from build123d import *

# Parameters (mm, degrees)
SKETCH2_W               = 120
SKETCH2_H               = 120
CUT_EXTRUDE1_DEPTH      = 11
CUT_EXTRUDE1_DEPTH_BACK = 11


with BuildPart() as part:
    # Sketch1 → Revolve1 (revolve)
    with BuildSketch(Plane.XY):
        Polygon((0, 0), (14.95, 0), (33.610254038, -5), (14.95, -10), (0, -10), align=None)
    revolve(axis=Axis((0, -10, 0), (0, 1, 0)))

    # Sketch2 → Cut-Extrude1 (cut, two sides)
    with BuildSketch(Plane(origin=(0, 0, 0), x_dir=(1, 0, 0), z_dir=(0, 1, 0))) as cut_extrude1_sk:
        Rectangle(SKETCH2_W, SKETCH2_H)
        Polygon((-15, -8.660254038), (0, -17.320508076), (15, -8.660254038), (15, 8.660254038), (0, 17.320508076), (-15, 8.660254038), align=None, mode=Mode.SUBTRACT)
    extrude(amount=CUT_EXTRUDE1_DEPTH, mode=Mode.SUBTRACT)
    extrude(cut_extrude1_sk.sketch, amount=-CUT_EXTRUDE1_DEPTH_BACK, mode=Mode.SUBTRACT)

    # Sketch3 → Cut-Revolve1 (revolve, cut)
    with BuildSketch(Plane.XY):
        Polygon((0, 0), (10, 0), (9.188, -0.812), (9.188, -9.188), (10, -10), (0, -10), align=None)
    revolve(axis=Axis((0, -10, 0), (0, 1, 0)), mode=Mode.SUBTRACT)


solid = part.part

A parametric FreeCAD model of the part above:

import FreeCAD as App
import Part
import Sketcher

V = App.Vector
Q = App.Units.Quantity

doc = App.newDocument("Part")
params = doc.addObject("Spreadsheet::Sheet", "Params")
for row, (alias, value) in enumerate([
    ("sketch1_height", "10 mm"),
    ("sketch1_width", "14.95 mm"),
    ("revolution_angle", "360 deg"),
    ("sketch2_width", "120 mm"),
    ("sketch3_width", "10 mm"),
    ("groove_angle", "360 deg"),
], start=1):
    params.set(f"A{row}", alias)
    params.set(f"B{row}", "=" + value)
    params.setAlias(f"B{row}", alias)

body = doc.addObject("PartDesign::Body", "Body")

# Sketch on XY plane
sketch1 = body.newObject("Sketcher::SketchObject", "Sketch")
sketch1.AttachmentSupport = (doc.getObject("XY_Plane"), [""])
sketch1.MapMode = "FlatFace"
sketch1.addGeometry(Part.LineSegment(V(15, 0, 0), V(0, 0, 0)), False)
sketch1.addGeometry(Part.LineSegment(V(0, 0, 0), V(0, -10, 0)), False)
sketch1.addGeometry(Part.LineSegment(V(0, -10, 0), V(15, -10, 0)), False)
sketch1.addGeometry(Part.LineSegment(V(15, -10, 0), V(34, -5, 0)), False)
sketch1.addGeometry(Part.LineSegment(V(34, -5, 0), V(15, 0, 0)), False)
sketch1.addConstraint(Sketcher.Constraint("Coincident", 0, 2, 1, 1))
sketch1.addConstraint(Sketcher.Constraint("Coincident", 1, 2, 2, 1))
sketch1.addConstraint(Sketcher.Constraint("Coincident", 2, 2, 3, 1))
sketch1.addConstraint(Sketcher.Constraint("Coincident", 3, 2, 4, 1))
sketch1.addConstraint(Sketcher.Constraint("Coincident", 4, 2, 0, 1))
sketch1.addConstraint(Sketcher.Constraint("Horizontal", 0))
sketch1.addConstraint(Sketcher.Constraint("Vertical", 1))
sketch1.addConstraint(Sketcher.Constraint("Horizontal", 2))
sketch1.addConstraint(Sketcher.Constraint("Coincident", 0, 2, -1, 1))
sketch1.addConstraint(Sketcher.Constraint("Vertical", 2, 2, 4, 2))
sketch1.addConstraint(Sketcher.Constraint("Equal", 3, 4))
sketch1.addConstraint(Sketcher.Constraint("DistanceY", 1, 2, 1, 1, Q("10 mm")))
sketch1.addConstraint(Sketcher.Constraint("Angle", 3, Q("15 deg")))
sketch1.addConstraint(Sketcher.Constraint("DistanceX", 0, 2, 0, 1, Q("14.95 mm")))
sketch1.setExpression("Constraints[11]", "Params.sketch1_height")
sketch1.setExpression("Constraints[13]", "Params.sketch1_width")
revolution = body.newObject("PartDesign::Revolution", "Revolution")
revolution.Profile = sketch1
revolution.ReferenceAxis = (sketch1, ["V_Axis"])
revolution.setExpression("Angle", "Params.revolution_angle")

# Sketch on XZ plane
sketch2 = body.newObject("Sketcher::SketchObject", "Sketch001")
sketch2.AttachmentSupport = (doc.getObject("XZ_Plane"), [""])
sketch2.MapMode = "FlatFace"
sketch2.addGeometry(Part.LineSegment(V(-60, -60, 0), V(-60, 60, 0)), False)
sketch2.addGeometry(Part.LineSegment(V(-60, 60, 0), V(60, 60, 0)), False)
sketch2.addGeometry(Part.LineSegment(V(60, 60, 0), V(60, -60, 0)), False)
sketch2.addGeometry(Part.LineSegment(V(60, -60, 0), V(-60, -60, 0)), False)
sketch2.addGeometry(Part.LineSegment(V(0, 17, 0), V(-15, 9, 0)), False)
sketch2.addGeometry(Part.LineSegment(V(-15, 9, 0), V(-15, -9, 0)), False)
sketch2.addGeometry(Part.LineSegment(V(-15, -9, 0), V(0, -17, 0)), False)
sketch2.addGeometry(Part.LineSegment(V(0, -17, 0), V(15, -9, 0)), False)
sketch2.addGeometry(Part.LineSegment(V(15, -9, 0), V(15, 9, 0)), False)
sketch2.addGeometry(Part.LineSegment(V(15, 9, 0), V(0, 17, 0)), False)
sketch2.addConstraint(Sketcher.Constraint("Coincident", 0, 2, 1, 1))
sketch2.addConstraint(Sketcher.Constraint("Coincident", 1, 2, 2, 1))
sketch2.addConstraint(Sketcher.Constraint("Coincident", 2, 2, 3, 1))
sketch2.addConstraint(Sketcher.Constraint("Coincident", 3, 2, 0, 1))
sketch2.addConstraint(Sketcher.Constraint("Coincident", 4, 2, 5, 1))
sketch2.addConstraint(Sketcher.Constraint("Coincident", 5, 2, 6, 1))
sketch2.addConstraint(Sketcher.Constraint("Coincident", 6, 2, 7, 1))
sketch2.addConstraint(Sketcher.Constraint("Coincident", 7, 2, 8, 1))
sketch2.addConstraint(Sketcher.Constraint("Coincident", 8, 2, 9, 1))
sketch2.addConstraint(Sketcher.Constraint("Coincident", 9, 2, 4, 1))
sketch2.addConstraint(Sketcher.Constraint("Vertical", 0))
sketch2.addConstraint(Sketcher.Constraint("Horizontal", 1))
sketch2.addConstraint(Sketcher.Constraint("Vertical", 2))
sketch2.addConstraint(Sketcher.Constraint("Horizontal", 3))
sketch2.addConstraint(Sketcher.Constraint("Vertical", 5))
sketch2.addConstraint(Sketcher.Constraint("Vertical", 8))
sketch2.addConstraint(Sketcher.Constraint("Symmetric", 0, 2, 2, 2, -1, 1))
sketch2.addConstraint(Sketcher.Constraint("Symmetric", 4, 2, 7, 2, -1, 1))
sketch2.addConstraint(Sketcher.Constraint("Symmetric", 6, 2, 9, 2, -1, 1))
sketch2.addConstraint(Sketcher.Constraint("PointOnObject", 6, 2, -2))
sketch2.addConstraint(Sketcher.Constraint("Parallel", 6, 9))
sketch2.addConstraint(Sketcher.Constraint("Horizontal", 5, 2, 7, 2))
sketch2.addConstraint(Sketcher.Constraint("Equal", 3, 0))
sketch2.addConstraint(Sketcher.Constraint("DistanceX", 1, 1, 1, 2, Q("120 mm")))
sketch2.addConstraint(Sketcher.Constraint("Angle", 4, Q("-150 deg")))
sketch2.addConstraint(Sketcher.Constraint("DistanceX", 4, 2, -1, 1, Q("15 mm")))
sketch2.addConstraint(Sketcher.Constraint("DistanceY", 5, 2, 5, 1, Q("17.320508 mm")))
sketch2.setExpression("Constraints[23]", "Params.sketch2_width")
pocket1 = body.newObject("PartDesign::Pocket", "Pocket")
pocket1.Profile = sketch2
pocket1.Type = "ThroughAll"
pocket1.Midplane = True

# Sketch on XY plane
sketch3 = body.newObject("Sketcher::SketchObject", "Sketch002")
sketch3.AttachmentSupport = (doc.getObject("XY_Plane"), [""])
sketch3.MapMode = "FlatFace"
sketch3.addGeometry(Part.LineSegment(V(10, 0, 0), V(0, 0, 0)), False)
sketch3.addGeometry(Part.LineSegment(V(0, 0, 0), V(0, -10, 0)), False)
sketch3.addGeometry(Part.LineSegment(V(0, -10, 0), V(10, -10, 0)), False)
sketch3.addGeometry(Part.LineSegment(V(10, -10, 0), V(9.2, -9.2, 0)), False)
sketch3.addGeometry(Part.LineSegment(V(9.2, -9.2, 0), V(9.2, -0.8, 0)), False)
sketch3.addGeometry(Part.LineSegment(V(9.2, -0.8, 0), V(10, 0, 0)), False)
sketch3.addConstraint(Sketcher.Constraint("Coincident", 0, 2, 1, 1))
sketch3.addConstraint(Sketcher.Constraint("Coincident", 1, 2, 2, 1))
sketch3.addConstraint(Sketcher.Constraint("Coincident", 2, 2, 3, 1))
sketch3.addConstraint(Sketcher.Constraint("Coincident", 3, 2, 4, 1))
sketch3.addConstraint(Sketcher.Constraint("Coincident", 4, 2, 5, 1))
sketch3.addConstraint(Sketcher.Constraint("Coincident", 5, 2, 0, 1))
sketch3.addConstraint(Sketcher.Constraint("Horizontal", 0))
sketch3.addConstraint(Sketcher.Constraint("Vertical", 1))
sketch3.addConstraint(Sketcher.Constraint("Horizontal", 2))
sketch3.addConstraint(Sketcher.Constraint("Vertical", 4))
sketch3.addConstraint(Sketcher.Constraint("Coincident", 0, 2, -1, 1))
sketch3.addConstraint(Sketcher.Constraint("Perpendicular", 3, 5))
sketch3.addConstraint(Sketcher.Constraint("Vertical", 2, 2, 5, 2))
sketch3.addConstraint(Sketcher.Constraint("Equal", 2, 1))
sketch3.addConstraint(Sketcher.Constraint("Equal", 3, 5))
sketch3.addConstraint(Sketcher.Constraint("DistanceX", 0, 2, 0, 1, Q("10 mm")))
sketch3.addConstraint(Sketcher.Constraint("DistanceY", 4, 1, 4, 2, Q("8.376 mm")))
sketch3.setExpression("Constraints[15]", "Params.sketch3_width")
groove = body.newObject("PartDesign::Groove", "Groove")
groove.Profile = sketch3
groove.ReferenceAxis = (sketch3, ["V_Axis"])
groove.setExpression("Angle", "Params.groove_angle")

doc.recompute()
